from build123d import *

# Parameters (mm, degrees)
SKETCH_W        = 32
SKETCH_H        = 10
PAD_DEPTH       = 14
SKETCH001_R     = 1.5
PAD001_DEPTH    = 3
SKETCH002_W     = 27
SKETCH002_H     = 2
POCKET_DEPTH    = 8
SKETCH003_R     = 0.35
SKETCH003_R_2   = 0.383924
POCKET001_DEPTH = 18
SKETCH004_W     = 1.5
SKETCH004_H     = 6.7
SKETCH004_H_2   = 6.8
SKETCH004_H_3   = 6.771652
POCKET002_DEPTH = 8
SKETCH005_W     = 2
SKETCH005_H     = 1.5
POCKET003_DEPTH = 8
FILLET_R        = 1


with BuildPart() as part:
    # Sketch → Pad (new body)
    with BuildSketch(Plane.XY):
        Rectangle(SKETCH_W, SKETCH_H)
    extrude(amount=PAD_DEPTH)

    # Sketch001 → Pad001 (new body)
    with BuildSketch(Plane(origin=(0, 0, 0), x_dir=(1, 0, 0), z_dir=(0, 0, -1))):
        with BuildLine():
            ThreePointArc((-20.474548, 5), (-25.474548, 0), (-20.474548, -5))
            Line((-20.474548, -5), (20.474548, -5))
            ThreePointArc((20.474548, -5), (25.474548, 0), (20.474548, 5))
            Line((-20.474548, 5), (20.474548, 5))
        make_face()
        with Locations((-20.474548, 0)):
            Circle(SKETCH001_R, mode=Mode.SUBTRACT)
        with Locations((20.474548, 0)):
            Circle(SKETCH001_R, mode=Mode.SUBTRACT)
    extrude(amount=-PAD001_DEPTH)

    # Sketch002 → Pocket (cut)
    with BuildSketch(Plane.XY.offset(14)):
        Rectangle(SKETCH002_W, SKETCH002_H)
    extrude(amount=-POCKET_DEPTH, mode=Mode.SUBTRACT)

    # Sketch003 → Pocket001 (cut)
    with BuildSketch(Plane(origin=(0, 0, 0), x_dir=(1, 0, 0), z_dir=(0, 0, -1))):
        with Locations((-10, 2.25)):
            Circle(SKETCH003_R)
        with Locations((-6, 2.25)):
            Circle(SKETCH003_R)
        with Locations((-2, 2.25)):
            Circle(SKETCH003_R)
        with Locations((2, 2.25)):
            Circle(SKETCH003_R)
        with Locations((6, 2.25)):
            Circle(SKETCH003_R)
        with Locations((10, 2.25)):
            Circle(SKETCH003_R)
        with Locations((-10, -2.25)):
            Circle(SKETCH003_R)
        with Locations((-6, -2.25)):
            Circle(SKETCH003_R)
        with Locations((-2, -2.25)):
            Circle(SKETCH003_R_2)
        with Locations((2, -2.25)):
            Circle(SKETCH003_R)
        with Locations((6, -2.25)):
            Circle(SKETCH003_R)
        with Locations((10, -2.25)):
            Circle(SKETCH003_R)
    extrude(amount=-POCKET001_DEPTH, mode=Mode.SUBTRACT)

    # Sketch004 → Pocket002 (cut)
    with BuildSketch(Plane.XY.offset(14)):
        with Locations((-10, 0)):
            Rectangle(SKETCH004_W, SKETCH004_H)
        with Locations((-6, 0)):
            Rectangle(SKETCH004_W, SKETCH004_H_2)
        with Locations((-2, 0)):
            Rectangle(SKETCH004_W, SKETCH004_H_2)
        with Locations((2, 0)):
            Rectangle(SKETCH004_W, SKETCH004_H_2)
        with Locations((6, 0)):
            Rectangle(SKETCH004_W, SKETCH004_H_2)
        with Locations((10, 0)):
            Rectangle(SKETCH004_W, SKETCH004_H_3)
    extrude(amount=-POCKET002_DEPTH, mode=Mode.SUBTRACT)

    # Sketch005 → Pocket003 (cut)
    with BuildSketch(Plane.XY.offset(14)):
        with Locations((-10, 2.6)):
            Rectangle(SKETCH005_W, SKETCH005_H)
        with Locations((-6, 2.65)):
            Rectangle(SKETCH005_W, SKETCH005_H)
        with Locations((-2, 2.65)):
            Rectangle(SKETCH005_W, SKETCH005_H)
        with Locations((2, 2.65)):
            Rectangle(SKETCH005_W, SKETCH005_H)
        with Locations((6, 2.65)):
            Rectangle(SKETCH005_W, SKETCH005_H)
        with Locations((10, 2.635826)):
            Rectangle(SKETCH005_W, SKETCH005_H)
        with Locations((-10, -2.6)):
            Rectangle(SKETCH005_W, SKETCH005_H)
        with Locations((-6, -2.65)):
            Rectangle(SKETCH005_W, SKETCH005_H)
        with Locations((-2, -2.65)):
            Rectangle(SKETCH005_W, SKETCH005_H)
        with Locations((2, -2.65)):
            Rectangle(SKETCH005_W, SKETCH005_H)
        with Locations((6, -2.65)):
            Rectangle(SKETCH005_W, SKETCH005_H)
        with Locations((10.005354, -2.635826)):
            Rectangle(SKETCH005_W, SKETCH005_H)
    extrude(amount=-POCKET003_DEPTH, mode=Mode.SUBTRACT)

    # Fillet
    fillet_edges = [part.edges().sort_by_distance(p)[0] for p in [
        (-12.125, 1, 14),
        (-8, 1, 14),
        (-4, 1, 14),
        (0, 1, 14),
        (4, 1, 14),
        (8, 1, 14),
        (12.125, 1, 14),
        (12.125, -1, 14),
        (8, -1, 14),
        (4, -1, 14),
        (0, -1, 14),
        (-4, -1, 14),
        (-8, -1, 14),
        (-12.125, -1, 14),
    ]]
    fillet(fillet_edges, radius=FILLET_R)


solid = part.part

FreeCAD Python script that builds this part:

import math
import FreeCAD as App
import Part
import Sketcher

V = App.Vector
Q = App.Units.Quantity


def edges_at(feature, points):
    """Names of the edges that pass closest to the given points."""
    edges = feature.Shape.Edges
    near = lambda p: min(range(len(edges)), key=lambda i: edges[i].distToShape(Part.Vertex(*p))[0])
    return sorted({f"Edge{near(p) + 1}" for p in points})


def add_polygon(sketch, points):
    """Adds a closed chain of lines whose ends are joined by coincident constraints."""
    first, n = sketch.GeometryCount, len(points)
    for a, b in zip(points, points[1:] + points[:1]):
        sketch.addGeometry(Part.LineSegment(App.Vector(*a, 0), App.Vector(*b, 0)), False)
    for i in range(n):
        sketch.addConstraint(Sketcher.Constraint("Coincident", first + i, 2, first + (i + 1) % n, 1))

doc = App.newDocument("Part")
body = doc.addObject("PartDesign::Body", "Body")

sketch1 = body.newObject("Sketcher::SketchObject", "Sketch")
sketch1.AttachmentSupport = (doc.getObject("XY_Plane"), [""])
sketch1.MapMode = "FlatFace"
add_polygon(sketch1, [(-16, 5), (-16, -5), (16, -5), (16, 5)])
sketch1.addConstraint(Sketcher.Constraint("Vertical", 0))
sketch1.addConstraint(Sketcher.Constraint("Horizontal", 1))
sketch1.addConstraint(Sketcher.Constraint("Vertical", 2))
sketch1.addConstraint(Sketcher.Constraint("Horizontal", 3))
sketch1.addConstraint(Sketcher.Constraint("Symmetric", 0, 2, 2, 2, -1, 1))
sketch1.addConstraint(Sketcher.Constraint("DistanceX", 1, 1, 1, 2, Q("32 mm")))
sketch1.addConstraint(Sketcher.Constraint("DistanceY", 0, 2, 0, 1, Q("10 mm")))
pad1 = body.newObject("PartDesign::Pad", "Pad")
pad1.Profile = sketch1
pad1.Length = 14

sketch2 = body.newObject("Sketcher::SketchObject", "Sketch001")
sketch2.AttachmentSupport = (doc.getObject("XY_Plane"), [""])
sketch2.MapMode = "FlatFace"
sketch2.addGeometry(Part.ArcOfCircle(Part.Circle(V(-20.474548, 0, 0), V(0, 0, 1), 5), math.radians(90), math.radians(270)), False)
sketch2.addGeometry(Part.LineSegment(V(-20.474548, 5, 0), V(20.474548, 5, 0)), False)
sketch2.addGeometry(Part.ArcOfCircle(Part.Circle(V(20.474548, 0, 0), V(0, 0, 1), 5), math.radians(-90), math.radians(90)), False)
sketch2.addGeometry(Part.LineSegment(V(20.474548, -5, 0), V(-20.474548, -5, 0)), False)
sketch2.addGeometry(Part.Circle(V(-20.474548, 0, 0), V(0, 0, 1), 1.5), False)
sketch2.addGeometry(Part.Circle(V(20.474548, 0, 0), V(0, 0, 1), 1.5), False)
sketch2.addConstraint(Sketcher.Constraint("Tangent", 0, 1, 1, 1))
sketch2.addConstraint(Sketcher.Constraint("Tangent", 1, 2, 2, 2))
sketch2.addConstraint(Sketcher.Constraint("Tangent", 2, 1, 3, 1))
sketch2.addConstraint(Sketcher.Constraint("Tangent", 3, 2, 0, 2))
sketch2.addConstraint(Sketcher.Constraint("Horizontal", 1))
sketch2.addConstraint(Sketcher.Constraint("Horizontal", 3))
sketch2.addConstraint(Sketcher.Constraint("Coincident", 4, 3, 0, 3))
sketch2.addConstraint(Sketcher.Constraint("Coincident", 5, 3, 2, 3))
sketch2.addConstraint(Sketcher.Constraint("Equal", 4, 5))
sketch2.addConstraint(Sketcher.Constraint("Symmetric", 0, 3, 2, 3, -1, 1))
sketch2.addConstraint(Sketcher.Constraint("Diameter", 4, Q("3 mm")))
sketch2.addConstraint(Sketcher.Constraint("Radius", 0, Q("5 mm")))
sketch2.addConstraint(Sketcher.Constraint("DistanceX", 1, 1, 1, 2, Q("40.949096 mm")))
pad2 = body.newObject("PartDesign::Pad", "Pad001")
pad2.Profile = sketch2
pad2.Length = 3

sketch3 = body.newObject("Sketcher::SketchObject", "Sketch002")
sketch3.AttachmentSupport = (doc.getObject("XY_Plane"), [""])
sketch3.MapMode = "FlatFace"
sketch3.AttachmentOffset = App.Placement(V(0, 0, 14), App.Rotation())
add_polygon(sketch3, [(-13.5, 1), (-13.5, -1), (13.5, -1), (13.5, 1)])
sketch3.addConstraint(Sketcher.Constraint("Vertical", 0))
sketch3.addConstraint(Sketcher.Constraint("Horizontal", 1))
sketch3.addConstraint(Sketcher.Constraint("Vertical", 2))
sketch3.addConstraint(Sketcher.Constraint("Horizontal", 3))
sketch3.addConstraint(Sketcher.Constraint("Symmetric", 0, 2, 2, 2, -1, 1))
sketch3.addConstraint(Sketcher.Constraint("DistanceX", 1, 1, 1, 2, Q("27 mm")))
sketch3.addConstraint(Sketcher.Constraint("DistanceY", 0, 2, 0, 1, Q("2 mm")))
pocket1 = body.newObject("PartDesign::Pocket", "Pocket")
pocket1.Profile = sketch3
pocket1.Length = 8

sketch4 = body.newObject("Sketcher::SketchObject", "Sketch003")
sketch4.AttachmentSupport = (doc.getObject("XY_Plane"), [""])
sketch4.MapMode = "FlatFace"
sketch4.addGeometry(Part.Circle(V(-10, -2.25, 0), V(0, 0, 1), 0.35), False)
sketch4.addGeometry(Part.Circle(V(-6, -2.25, 0), V(0, 0, 1), 0.35), False)
sketch4.addGeometry(Part.Circle(V(-2, -2.25, 0), V(0, 0, 1), 0.35), False)
sketch4.addGeometry(Part.Circle(V(2, -2.25, 0), V(0, 0, 1), 0.35), False)
sketch4.addGeometry(Part.Circle(V(6, -2.25, 0), V(0, 0, 1), 0.35), False)
sketch4.addGeometry(Part.Circle(V(10, -2.25, 0), V(0, 0, 1), 0.35), False)
sketch4.addGeometry(Part.Circle(V(-10, 2.25, 0), V(0, 0, 1), 0.35), False)
sketch4.addGeometry(Part.Circle(V(-6, 2.25, 0), V(0, 0, 1), 0.35), False)
sketch4.addGeometry(Part.Circle(V(-2, 2.25, 0), V(0, 0, 1), 0.383924), False)
sketch4.addGeometry(Part.Circle(V(2, 2.25, 0), V(0, 0, 1), 0.35), False)
sketch4.addGeometry(Part.Circle(V(6, 2.25, 0), V(0, 0, 1), 0.35), False)
sketch4.addGeometry(Part.Circle(V(10, 2.25, 0), V(0, 0, 1), 0.35), False)
sketch4.addConstraint(Sketcher.Constraint("Equal", 0, 1))
sketch4.addConstraint(Sketcher.Constraint("Equal", 1, 2))
sketch4.addConstraint(Sketcher.Constraint("Equal", 2, 3))
sketch4.addConstraint(Sketcher.Constraint("Equal", 3, 4))
sketch4.addConstraint(Sketcher.Constraint("Equal", 4, 5))
sketch4.addConstraint(Sketcher.Constraint("Equal", 5, 6))
sketch4.addConstraint(Sketcher.Constraint("Equal", 6, 7))
sketch4.addConstraint(Sketcher.Constraint("Equal", 7, 9))
sketch4.addConstraint(Sketcher.Constraint("Equal", 9, 10))
sketch4.addConstraint(Sketcher.Constraint("Equal", 10, 11))
sketch4.addConstraint(Sketcher.Constraint("Symmetric", 5, 3, 6, 3, -1, 1))
sketch4.addConstraint(Sketcher.Constraint("Symmetric", 4, 3, 7, 3, -1, 1))
sketch4.addConstraint(Sketcher.Constraint("Symmetric", 3, 3, 8, 3, -1, 1))
sketch4.addConstraint(Sketcher.Constraint("Symmetric", 2, 3, 9, 3, -1, 1))
sketch4.addConstraint(Sketcher.Constraint("Symmetric", 1, 3, 10, 3, -1, 1))
sketch4.addConstraint(Sketcher.Constraint("Symmetric", 0, 3, 11, 3, -1, 1))
sketch4.addConstraint(Sketcher.Constraint("Symmetric", 2, 3, 3, 3, -2))
sketch4.addConstraint(Sketcher.Constraint("Symmetric", 1, 3, 4, 3, -2))
sketch4.addConstraint(Sketcher.Constraint("Symmetric", 0, 3, 5, 3, -2))
sketch4.addConstraint(Sketcher.Constraint("Horizontal", 0, 3, 1, 3))
sketch4.addConstraint(Sketcher.Constraint("Horizontal", 1, 3, 2, 3))
sketch4.addConstraint(Sketcher.Constraint("Diameter", 0, Q("0.7 mm")))
sketch4.addConstraint(Sketcher.Constraint("DistanceX", 0, 3, -1, 1, Q("10 mm")))
sketch4.addConstraint(Sketcher.Constraint("DistanceX", 1, 3, -1, 1, Q("6 mm")))
sketch4.addConstraint(Sketcher.Constraint("DistanceX", 2, 3, -1, 1, Q("2 mm")))
sketch4.addConstraint(Sketcher.Constraint("DistanceY", 0, 3, 6, 3, Q("4.5 mm")))
sketch4.addConstraint(Sketcher.Constraint("Diameter", 8, Q("0.767848 mm")))
pocket2 = body.newObject("PartDesign::Pocket", "Pocket001")
pocket2.Profile = sketch4
pocket2.Length = 18
pocket2.Reversed = True

sketch5 = body.newObject("Sketcher::SketchObject", "Sketch004")
sketch5.AttachmentSupport = (doc.getObject("XY_Plane"), [""])
sketch5.MapMode = "FlatFace"
sketch5.AttachmentOffset = App.Placement(V(0, 0, 14), App.Rotation())
add_polygon(sketch5, [(-10.75, 3.35), (-10.75, -3.35), (-9.25, -3.35), (-9.25, 3.35)])
add_polygon(sketch5, [(-6.75, 3.4), (-6.75, -3.4), (-5.25, -3.4), (-5.25, 3.4)])
add_polygon(sketch5, [(-2.75, 3.4), (-2.75, -3.4), (-1.25, -3.4), (-1.25, 3.4)])
add_polygon(sketch5, [(1.25, 3.4), (1.25, -3.4), (2.75, -3.4), (2.75, 3.4)])
add_polygon(sketch5, [(5.25, 3.4), (5.25, -3.4), (6.75, -3.4), (6.75, 3.4)])
add_polygon(sketch5, [(9.25, 3.385826), (9.25, -3.385826), (10.75, -3.385826), (10.75, 3.385826)])
sketch5.addConstraint(Sketcher.Constraint("Vertical", 0))
sketch5.addConstraint(Sketcher.Constraint("Horizontal", 1))
sketch5.addConstraint(Sketcher.Constraint("Vertical", 2))
sketch5.addConstraint(Sketcher.Constraint("Horizontal", 3))
sketch5.addConstraint(Sketcher.Constraint("Vertical", 4))
sketch5.addConstraint(Sketcher.Constraint("Horizontal", 5))
sketch5.addConstraint(Sketcher.Constraint("Vertical", 6))
sketch5.addConstraint(Sketcher.Constraint("Horizontal", 7))
sketch5.addConstraint(Sketcher.Constraint("Vertical", 8))
sketch5.addConstraint(Sketcher.Constraint("Horizontal", 9))
sketch5.addConstraint(Sketcher.Constraint("Vertical", 10))
sketch5.addConstraint(Sketcher.Constraint("Horizontal", 11))
sketch5.addConstraint(Sketcher.Constraint("Vertical", 12))
sketch5.addConstraint(Sketcher.Constraint("Horizontal", 13))
sketch5.addConstraint(Sketcher.Constraint("Vertical", 14))
sketch5.addConstraint(Sketcher.Constraint("Horizontal", 15))
sketch5.addConstraint(Sketcher.Constraint("Vertical", 16))
sketch5.addConstraint(Sketcher.Constraint("Horizontal", 17))
sketch5.addConstraint(Sketcher.Constraint("Vertical", 18))
sketch5.addConstraint(Sketcher.Constraint("Horizontal", 19))
sketch5.addConstraint(Sketcher.Constraint("Vertical", 20))
sketch5.addConstraint(Sketcher.Constraint("Horizontal", 21))
sketch5.addConstraint(Sketcher.Constraint("Vertical", 22))
sketch5.addConstraint(Sketcher.Constraint("Horizontal", 23))
sketch5.addConstraint(Sketcher.Constraint("Symmetric", 10, 2, 12, 2, -1, 1))
sketch5.addConstraint(Sketcher.Constraint("Symmetric", 8, 2, 14, 2, -1, 1))
sketch5.addConstraint(Sketcher.Constraint("Symmetric", 6, 2, 16, 2, -1, 1))
sketch5.addConstraint(Sketcher.Constraint("Symmetric", 4, 2, 18, 2, -1, 1))
sketch5.addConstraint(Sketcher.Constraint("Horizontal", 5, 2, 8, 2))
sketch5.addConstraint(Sketcher.Constraint("Horizontal", 7, 2, 10, 2))
sketch5.addConstraint(Sketcher.Constraint("Horizontal", 9, 2, 12, 2))
sketch5.addConstraint(Sketcher.Constraint("Equal", 3, 5))
sketch5.addConstraint(Sketcher.Constraint("Equal", 7, 9))
sketch5.addConstraint(Sketcher.Constraint("Equal", 19, 21))
sketch5.addConstraint(Sketcher.Constraint("DistanceX", 1, 1, 1, 2, Q("1.5 mm")))
sketch5.addConstraint(Sketcher.Constraint("DistanceY", 0, 2, 0, 1, Q("6.7 mm")))
sketch5.addConstraint(Sketcher.Constraint("DistanceY", 4, 2, 4, 1, Q("6.8 mm")))
sketch5.addConstraint(Sketcher.Constraint("DistanceX", 0, 2, 4, 2, Q("4 mm")))
sketch5.addConstraint(Sketcher.Constraint("DistanceX", 4, 2, 8, 2, Q("4 mm")))
sketch5.addConstraint(Sketcher.Constraint("DistanceX", 8, 2, 12, 2, Q("4 mm")))
sketch5.addConstraint(Sketcher.Constraint("DistanceX", 16, 2, 20, 2, Q("4 mm")))
sketch5.addConstraint(Sketcher.Constraint("DistanceY", 0, 2, -1, 1, Q("3.35 mm")))
sketch5.addConstraint(Sketcher.Constraint("DistanceY", 20, 2, 20, 1, Q("6.771652 mm")))
sketch5.addConstraint(Sketcher.Constraint("DistanceY", 20, 2, -1, 1, Q("3.385826 mm")))
pocket3 = body.newObject("PartDesign::Pocket", "Pocket002")
pocket3.Profile = sketch5
pocket3.Length = 8

sketch6 = body.newObject("Sketcher::SketchObject", "Sketch005")
sketch6.AttachmentSupport = (doc.getObject("XY_Plane"), [""])
sketch6.MapMode = "FlatFace"
sketch6.AttachmentOffset = App.Placement(V(0, 0, 14), App.Rotation())
add_polygon(sketch6, [(-11, 3.35), (-11, 1.85), (-9, 1.85), (-9, 3.35)])
add_polygon(sketch6, [(-7, 3.4), (-7, 1.9), (-5, 1.9), (-5, 3.4)])
add_polygon(sketch6, [(-3, 3.4), (-3, 1.9), (-1, 1.9), (-1, 3.4)])
add_polygon(sketch6, [(1, 3.4), (1, 1.9), (3, 1.9), (3, 3.4)])
add_polygon(sketch6, [(5, 3.4), (5, 1.9), (7, 1.9), (7, 3.4)])
add_polygon(sketch6, [(9, 3.385826), (9, 1.885826), (11, 1.885826), (11, 3.385826)])
add_polygon(sketch6, [(-11, -1.85), (-11, -3.35), (-9, -3.35), (-9, -1.85)])
add_polygon(sketch6, [(-7, -1.9), (-7, -3.4), (-5, -3.4), (-5, -1.9)])
add_polygon(sketch6, [(-3, -1.9), (-3, -3.4), (-1, -3.4), (-1, -1.9)])
add_polygon(sketch6, [(1, -1.9), (1, -3.4), (3, -3.4), (3, -1.9)])
add_polygon(sketch6, [(5, -1.9), (5, -3.4), (7, -3.4), (7, -1.9)])
add_polygon(sketch6, [(9.005354, -1.885826), (9.005354, -3.385826), (11.005354, -3.385826), (11.005354, -1.885826)])
sketch6.addConstraint(Sketcher.Constraint("Vertical", 0))
sketch6.addConstraint(Sketcher.Constraint("Horizontal", 1))
sketch6.addConstraint(Sketcher.Constraint("Vertical", 2))
sketch6.addConstraint(Sketcher.Constraint("Horizontal", 3))
sketch6.addConstraint(Sketcher.Constraint("Vertical", 4))
sketch6.addConstraint(Sketcher.Constraint("Horizontal", 5))
sketch6.addConstraint(Sketcher.Constraint("Vertical", 6))
sketch6.addConstraint(Sketcher.Constraint("Horizontal", 7))
sketch6.addConstraint(Sketcher.Constraint("Vertical", 8))
sketch6.addConstraint(Sketcher.Constraint("Horizontal", 9))
sketch6.addConstraint(Sketcher.Constraint("Vertical", 10))
sketch6.addConstraint(Sketcher.Constraint("Horizontal", 11))
sketch6.addConstraint(Sketcher.Constraint("Vertical", 12))
sketch6.addConstraint(Sketcher.Constraint("Horizontal", 13))
sketch6.addConstraint(Sketcher.Constraint("Vertical", 14))
sketch6.addConstraint(Sketcher.Constraint("Horizontal", 15))
sketch6.addConstraint(Sketcher.Constraint("Vertical", 16))
sketch6.addConstraint(Sketcher.Constraint("Horizontal", 17))
sketch6.addConstraint(Sketcher.Constraint("Vertical", 18))
sketch6.addConstraint(Sketcher.Constraint("Horizontal", 19))
sketch6.addConstraint(Sketcher.Constraint("Vertical", 20))
sketch6.addConstraint(Sketcher.Constraint("Horizontal", 21))
sketch6.addConstraint(Sketcher.Constraint("Vertical", 22))
sketch6.addConstraint(Sketcher.Constraint("Horizontal", 23))
sketch6.addConstraint(Sketcher.Constraint("Vertical", 24))
sketch6.addConstraint(Sketcher.Constraint("Horizontal", 25))
sketch6.addConstraint(Sketcher.Constraint("Vertical", 26))
sketch6.addConstraint(Sketcher.Constraint("Horizontal", 27))
sketch6.addConstraint(Sketcher.Constraint("Vertical", 28))
sketch6.addConstraint(Sketcher.Constraint("Horizontal", 29))
sketch6.addConstraint(Sketcher.Constraint("Vertical", 30))
sketch6.addConstraint(Sketcher.Constraint("Horizontal", 31))
sketch6.addConstraint(Sketcher.Constraint("Vertical", 32))
sketch6.addConstraint(Sketcher.Constraint("Horizontal", 33))
sketch6.addConstraint(Sketcher.Constraint("Vertical", 34))
sketch6.addConstraint(Sketcher.Constraint("Horizontal", 35))
sketch6.addConstraint(Sketcher.Constraint("Vertical", 36))
sketch6.addConstraint(Sketcher.Constraint("Horizontal", 37))
sketch6.addConstraint(Sketcher.Constraint("Vertical", 38))
sketch6.addConstraint(Sketcher.Constraint("Horizontal", 39))
sketch6.addConstraint(Sketcher.Constraint("Vertical", 40))
sketch6.addConstraint(Sketcher.Constraint("Horizontal", 41))
sketch6.addConstraint(Sketcher.Constraint("Vertical", 42))
sketch6.addConstraint(Sketcher.Constraint("Horizontal", 43))
sketch6.addConstraint(Sketcher.Constraint("Vertical", 44))
sketch6.addConstraint(Sketcher.Constraint("Horizontal", 45))
sketch6.addConstraint(Sketcher.Constraint("Vertical", 46))
sketch6.addConstraint(Sketcher.Constraint("Horizontal", 47))
sketch6.addConstraint(Sketcher.Constraint("Symmetric", 18, 2, 28, 2, -1, 1))
sketch6.addConstraint(Sketcher.Constraint("Symmetric", 16, 2, 30, 2, -1, 1))
sketch6.addConstraint(Sketcher.Constraint("Symmetric", 14, 2, 32, 2, -1, 1))
sketch6.addConstraint(Sketcher.Constraint("Symmetric", 12, 2, 34, 2, -1, 1))
sketch6.addConstraint(Sketcher.Constraint("Symmetric", 10, 2, 36, 2, -1, 1))
sketch6.addConstraint(Sketcher.Constraint("Symmetric", 8, 2, 38, 2, -1, 1))
sketch6.addConstraint(Sketcher.Constraint("Symmetric", 6, 2, 40, 2, -1, 1))
sketch6.addConstraint(Sketcher.Constraint("Symmetric", 4, 2, 42, 2, -1, 1))
sketch6.addConstraint(Sketcher.Constraint("Symmetric", 9, 2, 12, 2, -2))
sketch6.addConstraint(Sketcher.Constraint("Symmetric", 11, 2, 14, 2, -2))
sketch6.addConstraint(Sketcher.Constraint("Symmetric", 5, 2, 16, 2, -2))
sketch6.addConstraint(Sketcher.Constraint("Symmetric", 7, 2, 18, 2, -2))
sketch6.addConstraint(Sketcher.Constraint("Symmetric", 3, 2, 24, 2, -1))
sketch6.addConstraint(Sketcher.Constraint("Symmetric", 1, 2, 26, 2, -1))
sketch6.addConstraint(Sketcher.Constraint("Horizontal", 5, 2, 8, 2))
sketch6.addConstraint(Sketcher.Constraint("Horizontal", 7, 2, 10, 2))
sketch6.addConstraint(Sketcher.Constraint("Equal", 3, 5))
sketch6.addConstraint(Sketcher.Constraint("Equal", 7, 9))
sketch6.addConstraint(Sketcher.Constraint("Equal", 19, 21))
sketch6.addConstraint(Sketcher.Constraint("Equal", 43, 45))
sketch6.addConstraint(Sketcher.Constraint("Equal", 2, 4))
sketch6.addConstraint(Sketcher.Constraint("Equal", 18, 20))
sketch6.addConstraint(Sketcher.Constraint("Equal", 42, 44))
sketch6.addConstraint(Sketcher.Constraint("DistanceX", 1, 1, 1, 2, Q("2 mm")))
sketch6.addConstraint(Sketcher.Constraint("DistanceY", 0, 2, 0, 1, Q("1.5 mm")))
sketch6.addConstraint(Sketcher.Constraint("DistanceX", 0, 2, -1, 1, Q("11 mm")))
sketch6.addConstraint(Sketcher.Constraint("DistanceX", 4, 2, -1, 1, Q("7 mm")))
sketch6.addConstraint(Sketcher.Constraint("DistanceX", 8, 2, -1, 1, Q("3 mm")))
sketch6.addConstraint(Sketcher.Constraint("DistanceX", -1, 1, 20, 2, Q("9 mm")))
sketch6.addConstraint(Sketcher.Constraint("DistanceY", -1, 1, 4, 2, Q("1.9 mm")))
sketch6.addConstraint(Sketcher.Constraint("DistanceY", 24, 2, 0, 2, Q("5.2 mm")))
sketch6.addConstraint(Sketcher.Constraint("DistanceY", 44, 2, 20, 2, Q("5.271652 mm")))
sketch6.addConstraint(Sketcher.Constraint("DistanceY", -1, 1, 20, 2, Q("1.885826 mm")))
sketch6.addConstraint(Sketcher.Constraint("DistanceX", -1, 1, 44, 2, Q("9.005354 mm")))
pocket4 = body.newObject("PartDesign::Pocket", "Pocket003")
pocket4.Profile = sketch6
pocket4.Length = 8
doc.recompute()

fillet = body.newObject("PartDesign::Fillet", "Fillet")
fillet.Base = (pocket4, edges_at(pocket4, [
    (-12.125, 1, 14),
    (-8, 1, 14),
    (-4, 1, 14),
    (0, 1, 14),
    (4, 1, 14),
    (8, 1, 14),
    (12.125, 1, 14),
    (12.125, -1, 14),
    (8, -1, 14),
    (4, -1, 14),
    (0, -1, 14),
    (-4, -1, 14),
    (-8, -1, 14),
    (-12.125, -1, 14),
]))
fillet.Radius = 1

doc.recompute()
